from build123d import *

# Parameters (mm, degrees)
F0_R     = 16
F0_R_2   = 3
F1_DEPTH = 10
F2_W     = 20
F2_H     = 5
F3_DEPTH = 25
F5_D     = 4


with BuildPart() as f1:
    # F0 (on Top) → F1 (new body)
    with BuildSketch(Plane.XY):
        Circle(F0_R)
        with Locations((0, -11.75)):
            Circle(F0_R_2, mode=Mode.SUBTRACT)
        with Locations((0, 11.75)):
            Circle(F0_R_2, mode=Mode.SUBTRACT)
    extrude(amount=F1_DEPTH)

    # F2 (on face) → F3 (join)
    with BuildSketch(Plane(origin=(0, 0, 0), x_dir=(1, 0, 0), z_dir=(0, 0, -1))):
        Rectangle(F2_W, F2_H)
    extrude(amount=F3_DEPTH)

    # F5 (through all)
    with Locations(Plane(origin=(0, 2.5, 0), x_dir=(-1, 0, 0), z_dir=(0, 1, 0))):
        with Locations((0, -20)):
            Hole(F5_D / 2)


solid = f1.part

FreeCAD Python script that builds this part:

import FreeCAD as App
import Part
import Sketcher

V = App.Vector

doc = App.newDocument("Part")
body = doc.addObject("PartDesign::Body", "Body")

# Sketch on XY plane
sketch1 = body.newObject("Sketcher::SketchObject", "Sketch")
sketch1.AttachmentSupport = (doc.getObject("XY_Plane"), [""])
sketch1.MapMode = "FlatFace"
sketch1.addGeometry(Part.Circle(V(0, 0, 0), V(0, 0, 1), 16), False)
sketch1.addGeometry(Part.Circle(V(0, -11.8, 0), V(0, 0, 1), 3), False)
sketch1.addGeometry(Part.Circle(V(0, 11.8, 0), V(0, 0, 1), 3), False)
sketch1.addConstraint(Sketcher.Constraint("Coincident", 0, 3, -1, 1))
sketch1.addConstraint(Sketcher.Constraint("Equal", 1, 2))
sketch1.addConstraint(Sketcher.Constraint("Symmetric", 1, 3, 2, 3, -1, 1))
sketch1.addConstraint(Sketcher.Constraint("PointOnObject", 1, 3, -2))
sketch1.addConstraint(Sketcher.Constraint("Diameter", 0, 32.0))
sketch1.addConstraint(Sketcher.Constraint("Diameter", 1, 6.0))
sketch1.addConstraint(Sketcher.Constraint("DistanceY", 1, 3, 2, 3, 23.5))
pad1 = body.newObject("PartDesign::Pad", "Pad")
pad1.Profile = sketch1
pad1.Length = 10

# Sketch on XY plane
sketch2 = body.newObject("Sketcher::SketchObject", "Sketch001")
sketch2.AttachmentSupport = (doc.getObject("XY_Plane"), [""])
sketch2.MapMode = "FlatFace"
sketch2.addGeometry(Part.LineSegment(V(-10, -2, 0), V(-10, 2, 0)), False)
sketch2.addGeometry(Part.LineSegment(V(-10, 2, 0), V(10, 2, 0)), False)
sketch2.addGeometry(Part.LineSegment(V(10, 2, 0), V(10, -2, 0)), False)
sketch2.addGeometry(Part.LineSegment(V(10, -2, 0), V(-10, -2, 0)), False)
sketch2.addConstraint(Sketcher.Constraint("Coincident", 0, 2, 1, 1))
sketch2.addConstraint(Sketcher.Constraint("Coincident", 1, 2, 2, 1))
sketch2.addConstraint(Sketcher.Constraint("Coincident", 2, 2, 3, 1))
sketch2.addConstraint(Sketcher.Constraint("Coincident", 3, 2, 0, 1))
sketch2.addConstraint(Sketcher.Constraint("Vertical", 0))
sketch2.addConstraint(Sketcher.Constraint("Horizontal", 1))
sketch2.addConstraint(Sketcher.Constraint("Vertical", 2))
sketch2.addConstraint(Sketcher.Constraint("Horizontal", 3))
sketch2.addConstraint(Sketcher.Constraint("Symmetric", 0, 2, 2, 2, -1, 1))
sketch2.addConstraint(Sketcher.Constraint("DistanceX", 1, 1, 1, 2, 20.0))
sketch2.addConstraint(Sketcher.Constraint("DistanceY", 0, 1, 0, 2, 5.0))
pad2 = body.newObject("PartDesign::Pad", "Pad001")
pad2.Profile = sketch2
pad2.Length = 25
pad2.Reversed = True

# Sketch on XZ plane
sketch3 = body.newObject("Sketcher::SketchObject", "Sketch002")
sketch3.AttachmentSupport = (doc.getObject("XZ_Plane"), [""])
sketch3.MapMode = "FlatFace"
sketch3.AttachmentOffset = App.Placement(V(0, 0, -2.5), App.Rotation())
sketch3.addGeometry(Part.Circle(V(0, -20, 0), V(0, 0, 1), 2), False)
sketch3.addConstraint(Sketcher.Constraint("PointOnObject", 0, 3, -2))
sketch3.addConstraint(Sketcher.Constraint("Diameter", 0, 4.0))
sketch3.addConstraint(Sketcher.Constraint("DistanceY", 0, 3, -1, 1, 20.0))
doc.recompute()
hole = body.newObject("PartDesign::Hole", "Hole")
hole.Profile = sketch3
hole.ThreadType = "None"
hole.Diameter = 4
hole.DepthType = "ThroughAll"
hole.Reversed = True

doc.recompute()
